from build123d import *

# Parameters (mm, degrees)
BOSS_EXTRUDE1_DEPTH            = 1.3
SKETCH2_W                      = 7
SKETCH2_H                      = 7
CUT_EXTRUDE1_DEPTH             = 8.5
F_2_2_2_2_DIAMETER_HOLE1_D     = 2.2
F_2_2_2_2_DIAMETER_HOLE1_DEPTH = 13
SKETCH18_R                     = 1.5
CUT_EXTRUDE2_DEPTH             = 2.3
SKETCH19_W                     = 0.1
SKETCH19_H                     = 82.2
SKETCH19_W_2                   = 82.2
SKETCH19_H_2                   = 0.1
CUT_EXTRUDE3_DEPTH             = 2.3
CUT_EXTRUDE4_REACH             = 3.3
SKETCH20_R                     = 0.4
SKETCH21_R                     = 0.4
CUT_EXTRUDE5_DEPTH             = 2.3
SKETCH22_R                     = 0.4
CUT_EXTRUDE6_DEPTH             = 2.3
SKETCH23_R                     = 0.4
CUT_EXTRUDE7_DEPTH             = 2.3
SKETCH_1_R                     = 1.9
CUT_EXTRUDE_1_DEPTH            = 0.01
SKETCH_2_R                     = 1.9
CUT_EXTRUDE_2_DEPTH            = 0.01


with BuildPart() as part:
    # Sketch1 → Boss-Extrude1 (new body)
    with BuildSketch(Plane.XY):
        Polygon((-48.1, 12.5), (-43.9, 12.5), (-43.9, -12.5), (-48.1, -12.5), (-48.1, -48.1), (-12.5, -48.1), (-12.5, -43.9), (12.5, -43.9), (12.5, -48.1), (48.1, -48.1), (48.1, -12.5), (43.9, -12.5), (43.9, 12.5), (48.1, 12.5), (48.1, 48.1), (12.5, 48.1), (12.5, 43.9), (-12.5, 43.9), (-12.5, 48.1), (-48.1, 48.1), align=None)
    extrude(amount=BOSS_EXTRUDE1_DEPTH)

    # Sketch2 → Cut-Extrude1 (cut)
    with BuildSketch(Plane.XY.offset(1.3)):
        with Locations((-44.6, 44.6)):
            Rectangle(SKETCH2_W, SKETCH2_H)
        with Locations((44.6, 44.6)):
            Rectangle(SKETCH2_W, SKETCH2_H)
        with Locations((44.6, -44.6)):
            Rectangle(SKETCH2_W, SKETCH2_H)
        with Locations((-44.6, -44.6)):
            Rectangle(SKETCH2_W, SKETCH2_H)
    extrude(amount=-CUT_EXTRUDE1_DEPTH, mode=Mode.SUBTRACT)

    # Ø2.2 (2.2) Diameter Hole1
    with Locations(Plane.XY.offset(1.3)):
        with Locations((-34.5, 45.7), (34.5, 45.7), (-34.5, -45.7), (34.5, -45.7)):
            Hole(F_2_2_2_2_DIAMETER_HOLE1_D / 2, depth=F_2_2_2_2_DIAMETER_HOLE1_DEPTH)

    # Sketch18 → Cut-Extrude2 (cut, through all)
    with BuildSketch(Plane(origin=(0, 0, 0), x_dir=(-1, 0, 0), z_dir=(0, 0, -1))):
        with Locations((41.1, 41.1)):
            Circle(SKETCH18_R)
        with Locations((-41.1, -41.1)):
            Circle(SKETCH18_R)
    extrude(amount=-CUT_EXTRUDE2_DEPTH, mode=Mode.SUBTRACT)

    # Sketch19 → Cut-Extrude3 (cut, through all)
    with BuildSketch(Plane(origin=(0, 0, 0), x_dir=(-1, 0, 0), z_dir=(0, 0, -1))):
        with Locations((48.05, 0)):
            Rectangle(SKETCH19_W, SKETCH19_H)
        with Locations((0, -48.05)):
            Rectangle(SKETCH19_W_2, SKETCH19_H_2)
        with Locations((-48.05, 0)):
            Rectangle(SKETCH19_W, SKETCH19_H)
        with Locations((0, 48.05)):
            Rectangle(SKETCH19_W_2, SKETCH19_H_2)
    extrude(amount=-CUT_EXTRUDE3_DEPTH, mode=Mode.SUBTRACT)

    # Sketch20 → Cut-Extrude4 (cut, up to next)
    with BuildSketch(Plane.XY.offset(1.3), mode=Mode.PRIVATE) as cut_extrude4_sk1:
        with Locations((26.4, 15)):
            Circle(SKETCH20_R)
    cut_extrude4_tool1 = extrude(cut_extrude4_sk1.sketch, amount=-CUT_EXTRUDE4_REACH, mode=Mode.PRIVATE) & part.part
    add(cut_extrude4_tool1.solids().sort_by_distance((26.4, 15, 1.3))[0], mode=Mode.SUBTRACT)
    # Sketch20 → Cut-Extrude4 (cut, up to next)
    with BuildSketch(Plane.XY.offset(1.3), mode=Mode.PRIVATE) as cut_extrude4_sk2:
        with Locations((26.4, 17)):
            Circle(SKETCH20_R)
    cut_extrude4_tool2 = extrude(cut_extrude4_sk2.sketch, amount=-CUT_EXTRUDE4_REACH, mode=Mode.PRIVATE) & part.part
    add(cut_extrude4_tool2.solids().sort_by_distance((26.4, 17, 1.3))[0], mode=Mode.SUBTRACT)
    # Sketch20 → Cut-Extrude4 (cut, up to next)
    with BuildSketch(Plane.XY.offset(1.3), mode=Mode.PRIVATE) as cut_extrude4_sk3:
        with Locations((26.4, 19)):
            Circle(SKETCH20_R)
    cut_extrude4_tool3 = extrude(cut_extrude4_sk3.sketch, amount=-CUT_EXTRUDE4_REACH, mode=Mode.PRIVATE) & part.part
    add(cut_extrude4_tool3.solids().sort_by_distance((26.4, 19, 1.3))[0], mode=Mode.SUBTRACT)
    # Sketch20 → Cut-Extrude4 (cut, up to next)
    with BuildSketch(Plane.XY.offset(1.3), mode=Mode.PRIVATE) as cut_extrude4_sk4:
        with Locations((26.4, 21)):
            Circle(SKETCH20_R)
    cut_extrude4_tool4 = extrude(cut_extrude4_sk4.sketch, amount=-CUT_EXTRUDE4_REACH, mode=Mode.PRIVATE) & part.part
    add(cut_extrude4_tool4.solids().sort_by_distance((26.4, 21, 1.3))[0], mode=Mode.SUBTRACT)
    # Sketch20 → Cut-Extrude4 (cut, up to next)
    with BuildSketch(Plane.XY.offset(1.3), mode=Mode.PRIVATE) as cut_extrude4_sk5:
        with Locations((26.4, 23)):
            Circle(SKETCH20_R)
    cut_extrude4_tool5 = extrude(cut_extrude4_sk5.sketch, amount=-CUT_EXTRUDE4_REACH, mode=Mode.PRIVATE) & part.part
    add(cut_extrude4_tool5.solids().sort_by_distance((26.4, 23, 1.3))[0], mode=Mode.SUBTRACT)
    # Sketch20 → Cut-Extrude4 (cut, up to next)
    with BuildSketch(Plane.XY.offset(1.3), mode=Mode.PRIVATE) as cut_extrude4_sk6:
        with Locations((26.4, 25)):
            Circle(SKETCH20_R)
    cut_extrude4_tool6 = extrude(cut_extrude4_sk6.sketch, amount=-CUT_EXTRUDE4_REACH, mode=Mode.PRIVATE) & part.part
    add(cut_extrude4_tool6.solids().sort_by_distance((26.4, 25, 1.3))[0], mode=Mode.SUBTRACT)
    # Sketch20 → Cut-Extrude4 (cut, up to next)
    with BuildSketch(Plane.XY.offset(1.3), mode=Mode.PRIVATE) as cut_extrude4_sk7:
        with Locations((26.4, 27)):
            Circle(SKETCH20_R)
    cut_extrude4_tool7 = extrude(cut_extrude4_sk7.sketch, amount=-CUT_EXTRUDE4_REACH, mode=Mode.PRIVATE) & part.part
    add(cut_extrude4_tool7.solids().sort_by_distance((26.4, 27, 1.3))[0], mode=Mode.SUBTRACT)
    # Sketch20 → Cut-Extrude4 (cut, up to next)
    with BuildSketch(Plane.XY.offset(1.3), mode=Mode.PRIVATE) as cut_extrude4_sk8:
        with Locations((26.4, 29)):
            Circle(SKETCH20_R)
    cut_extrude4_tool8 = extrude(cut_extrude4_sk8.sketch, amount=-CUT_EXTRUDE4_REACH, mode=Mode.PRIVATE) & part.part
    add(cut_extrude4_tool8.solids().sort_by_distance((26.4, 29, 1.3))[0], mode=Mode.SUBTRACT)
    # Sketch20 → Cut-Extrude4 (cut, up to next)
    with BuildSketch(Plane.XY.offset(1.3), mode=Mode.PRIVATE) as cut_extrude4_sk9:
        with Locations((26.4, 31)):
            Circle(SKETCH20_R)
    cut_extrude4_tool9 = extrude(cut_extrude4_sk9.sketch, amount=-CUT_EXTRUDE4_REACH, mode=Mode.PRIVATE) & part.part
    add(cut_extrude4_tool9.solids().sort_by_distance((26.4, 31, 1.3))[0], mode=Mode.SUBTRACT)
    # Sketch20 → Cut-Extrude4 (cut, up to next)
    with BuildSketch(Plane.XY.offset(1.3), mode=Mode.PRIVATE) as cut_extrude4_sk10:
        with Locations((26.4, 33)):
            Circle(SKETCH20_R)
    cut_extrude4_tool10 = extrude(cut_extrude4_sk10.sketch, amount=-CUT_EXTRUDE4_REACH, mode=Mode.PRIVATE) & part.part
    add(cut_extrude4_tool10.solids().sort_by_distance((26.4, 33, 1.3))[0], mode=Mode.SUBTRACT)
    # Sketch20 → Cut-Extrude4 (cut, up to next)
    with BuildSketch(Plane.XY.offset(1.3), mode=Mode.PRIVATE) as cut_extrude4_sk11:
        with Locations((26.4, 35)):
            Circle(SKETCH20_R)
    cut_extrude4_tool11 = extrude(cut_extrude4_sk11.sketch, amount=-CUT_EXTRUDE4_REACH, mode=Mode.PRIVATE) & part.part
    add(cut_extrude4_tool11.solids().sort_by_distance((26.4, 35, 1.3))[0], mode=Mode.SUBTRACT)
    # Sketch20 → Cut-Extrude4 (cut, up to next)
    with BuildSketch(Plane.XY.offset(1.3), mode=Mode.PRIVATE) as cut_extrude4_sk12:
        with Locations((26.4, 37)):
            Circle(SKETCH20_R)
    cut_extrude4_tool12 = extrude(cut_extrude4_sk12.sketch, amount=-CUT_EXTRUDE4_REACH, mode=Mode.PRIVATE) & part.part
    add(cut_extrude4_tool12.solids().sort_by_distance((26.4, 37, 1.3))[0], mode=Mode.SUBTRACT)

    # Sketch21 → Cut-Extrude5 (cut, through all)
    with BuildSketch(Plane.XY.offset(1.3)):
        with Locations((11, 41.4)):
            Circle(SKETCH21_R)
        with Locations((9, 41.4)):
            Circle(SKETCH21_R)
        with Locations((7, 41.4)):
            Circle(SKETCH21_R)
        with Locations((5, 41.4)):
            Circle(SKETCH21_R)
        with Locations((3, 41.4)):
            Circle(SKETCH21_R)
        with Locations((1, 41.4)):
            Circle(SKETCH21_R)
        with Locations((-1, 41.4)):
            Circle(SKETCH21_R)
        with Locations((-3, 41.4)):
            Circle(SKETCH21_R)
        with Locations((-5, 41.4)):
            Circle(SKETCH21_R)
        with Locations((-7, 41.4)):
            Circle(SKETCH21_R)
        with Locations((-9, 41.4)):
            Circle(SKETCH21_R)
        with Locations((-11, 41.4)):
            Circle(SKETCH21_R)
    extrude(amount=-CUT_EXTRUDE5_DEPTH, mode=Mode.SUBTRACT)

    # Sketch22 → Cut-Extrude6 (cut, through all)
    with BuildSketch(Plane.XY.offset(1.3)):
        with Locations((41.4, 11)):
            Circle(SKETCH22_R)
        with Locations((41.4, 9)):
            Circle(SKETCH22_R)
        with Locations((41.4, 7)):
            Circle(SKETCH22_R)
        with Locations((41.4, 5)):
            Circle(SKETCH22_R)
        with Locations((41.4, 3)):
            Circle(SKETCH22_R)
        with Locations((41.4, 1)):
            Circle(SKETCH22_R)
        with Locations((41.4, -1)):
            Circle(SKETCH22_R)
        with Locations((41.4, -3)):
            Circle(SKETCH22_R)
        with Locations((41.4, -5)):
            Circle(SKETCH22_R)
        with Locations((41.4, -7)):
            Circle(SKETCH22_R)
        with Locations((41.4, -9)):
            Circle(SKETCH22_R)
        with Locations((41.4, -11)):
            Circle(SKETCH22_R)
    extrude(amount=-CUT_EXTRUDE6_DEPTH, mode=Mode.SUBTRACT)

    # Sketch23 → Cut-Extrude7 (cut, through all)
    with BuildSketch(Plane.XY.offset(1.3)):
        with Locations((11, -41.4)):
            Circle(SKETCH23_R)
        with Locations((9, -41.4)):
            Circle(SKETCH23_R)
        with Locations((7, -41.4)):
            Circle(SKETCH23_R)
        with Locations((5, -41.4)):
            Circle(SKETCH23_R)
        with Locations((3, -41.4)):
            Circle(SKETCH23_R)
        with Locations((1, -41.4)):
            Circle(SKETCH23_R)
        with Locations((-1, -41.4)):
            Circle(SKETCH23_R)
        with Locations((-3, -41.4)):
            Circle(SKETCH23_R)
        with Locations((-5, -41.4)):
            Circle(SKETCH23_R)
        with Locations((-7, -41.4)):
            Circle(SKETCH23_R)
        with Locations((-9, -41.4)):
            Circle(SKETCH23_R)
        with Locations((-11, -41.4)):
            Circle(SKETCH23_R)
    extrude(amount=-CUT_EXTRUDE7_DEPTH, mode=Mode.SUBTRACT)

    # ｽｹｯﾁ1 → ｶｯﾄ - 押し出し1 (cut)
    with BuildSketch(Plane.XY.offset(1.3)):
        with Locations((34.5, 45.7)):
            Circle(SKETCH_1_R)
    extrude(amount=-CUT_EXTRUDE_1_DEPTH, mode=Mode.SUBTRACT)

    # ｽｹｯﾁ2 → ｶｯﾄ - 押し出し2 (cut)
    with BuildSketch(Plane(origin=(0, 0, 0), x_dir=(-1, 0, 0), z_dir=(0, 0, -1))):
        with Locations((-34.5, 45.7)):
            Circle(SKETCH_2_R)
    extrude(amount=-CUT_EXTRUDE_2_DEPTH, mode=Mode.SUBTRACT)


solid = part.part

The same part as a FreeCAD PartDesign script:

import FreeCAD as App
import Part
import Sketcher
Q = App.Units.Quantity

doc = App.newDocument("Part")
body = doc.addObject("PartDesign::Body", "Body")

sketch1 = body.newObject("Sketcher::SketchObject", "Sketch")
sketch1.AttachmentSupport = (doc.getObject("XY_Plane"), [""])
sketch1.MapMode = "FlatFace"
sketch1.addGeometry([
    Part.LineSegment(App.Vector(-48.1, 12.5, 0), App.Vector(-43.9, 12.5, 0)),
    Part.LineSegment(App.Vector(-43.9, 12.5, 0), App.Vector(-43.9, -12.5, 0)),
    Part.LineSegment(App.Vector(-43.9, -12.5, 0), App.Vector(-48.1, -12.5, 0)),
    Part.LineSegment(App.Vector(-48.1, -12.5, 0), App.Vector(-48.1, -48.1, 0)),
    Part.LineSegment(App.Vector(-48.1, -48.1, 0), App.Vector(-12.5, -48.1, 0)),
    Part.LineSegment(App.Vector(-12.5, -48.1, 0), App.Vector(-12.5, -43.9, 0)),
    Part.LineSegment(App.Vector(-12.5, -43.9, 0), App.Vector(12.5, -43.9, 0)),
    Part.LineSegment(App.Vector(12.5, -43.9, 0), App.Vector(12.5, -48.1, 0)),
    Part.LineSegment(App.Vector(12.5, -48.1, 0), App.Vector(48.1, -48.1, 0)),
    Part.LineSegment(App.Vector(48.1, -48.1, 0), App.Vector(48.1, -12.5, 0)),
    Part.LineSegment(App.Vector(48.1, -12.5, 0), App.Vector(43.9, -12.5, 0)),
    Part.LineSegment(App.Vector(43.9, -12.5, 0), App.Vector(43.9, 12.5, 0)),
    Part.LineSegment(App.Vector(43.9, 12.5, 0), App.Vector(48.1, 12.5, 0)),
    Part.LineSegment(App.Vector(48.1, 12.5, 0), App.Vector(48.1, 48.1, 0)),
    Part.LineSegment(App.Vector(48.1, 48.1, 0), App.Vector(12.5, 48.1, 0)),
    Part.LineSegment(App.Vector(12.5, 48.1, 0), App.Vector(12.5, 43.9, 0)),
    Part.LineSegment(App.Vector(12.5, 43.9, 0), App.Vector(-12.5, 43.9, 0)),
    Part.LineSegment(App.Vector(-12.5, 43.9, 0), App.Vector(-12.5, 48.1, 0)),
    Part.LineSegment(App.Vector(-12.5, 48.1, 0), App.Vector(-48.1, 48.1, 0)),
    Part.LineSegment(App.Vector(-48.1, 48.1, 0), App.Vector(-48.1, 12.5, 0)),
], False)
sketch1.addConstraint([
    Sketcher.Constraint("Coincident", 0, 2, 1, 1),
    Sketcher.Constraint("Coincident", 1, 2, 2, 1),
    Sketcher.Constraint("Coincident", 2, 2, 3, 1),
    Sketcher.Constraint("Coincident", 3, 2, 4, 1),
    Sketcher.Constraint("Coincident", 4, 2, 5, 1),
    Sketcher.Constraint("Coincident", 5, 2, 6, 1),
    Sketcher.Constraint("Coincident", 6, 2, 7, 1),
    Sketcher.Constraint("Coincident", 7, 2, 8, 1),
    Sketcher.Constraint("Coincident", 8, 2, 9, 1),
    Sketcher.Constraint("Coincident", 9, 2, 10, 1),
    Sketcher.Constraint("Coincident", 10, 2, 11, 1),
    Sketcher.Constraint("Coincident", 11, 2, 12, 1),
    Sketcher.Constraint("Coincident", 12, 2, 13, 1),
    Sketcher.Constraint("Coincident", 13, 2, 14, 1),
    Sketcher.Constraint("Coincident", 14, 2, 15, 1),
    Sketcher.Constraint("Coincident", 15, 2, 16, 1),
    Sketcher.Constraint("Coincident", 16, 2, 17, 1),
    Sketcher.Constraint("Coincident", 17, 2, 18, 1),
    Sketcher.Constraint("Coincident", 18, 2, 19, 1),
    Sketcher.Constraint("Coincident", 19, 2, 0, 1),
    Sketcher.Constraint("Horizontal", 0),
    Sketcher.Constraint("Vertical", 1),
    Sketcher.Constraint("Horizontal", 2),
    Sketcher.Constraint("Vertical", 3),
    Sketcher.Constraint("Horizontal", 4),
    Sketcher.Constraint("Vertical", 5),
    Sketcher.Constraint("Horizontal", 6),
    Sketcher.Constraint("Vertical", 7),
    Sketcher.Constraint("Horizontal", 8),
    Sketcher.Constraint("Vertical", 9),
    Sketcher.Constraint("Horizontal", 10),
    Sketcher.Constraint("Vertical", 11),
    Sketcher.Constraint("Horizontal", 12),
    Sketcher.Constraint("Vertical", 13),
    Sketcher.Constraint("Horizontal", 14),
    Sketcher.Constraint("Vertical", 15),
    Sketcher.Constraint("Horizontal", 16),
    Sketcher.Constraint("Vertical", 17),
    Sketcher.Constraint("Horizontal", 18),
    Sketcher.Constraint("Vertical", 19),
    Sketcher.Constraint("Symmetric", 0, 2, 10, 2, -1, 1),
    Sketcher.Constraint("Symmetric", 2, 2, 12, 2, -1, 1),
    Sketcher.Constraint("Symmetric", 4, 2, 14, 2, -1, 1),
    Sketcher.Constraint("Symmetric", 6, 2, 16, 2, -1, 1),
    Sketcher.Constraint("Symmetric", 8, 2, 18, 2, -1, 1),
    Sketcher.Constraint("Symmetric", 4, 2, 7, 2, -2),
    Sketcher.Constraint("Symmetric", 2, 2, 9, 2, -2),
    Sketcher.Constraint("Equal", 16, 1),
    Sketcher.Constraint("Equal", 18, 3),
    Sketcher.Constraint("Equal", 12, 5),
    Sketcher.Constraint("DistanceX", 6, 1, 6, 2, Q("25 mm")),
    Sketcher.Constraint("DistanceX", 0, 1, 0, 2, Q("4.2 mm")),
    Sketcher.Constraint("DistanceX", 4, 1, 4, 2, Q("35.6 mm")),
])
pad1 = body.newObject("PartDesign::Pad", "Pad")
pad1.Profile = sketch1
pad1.Length = 1.3

sketch2 = body.newObject("Sketcher::SketchObject", "Sketch001")
sketch2.AttachmentSupport = (doc.getObject("XY_Plane"), [""])
sketch2.MapMode = "FlatFace"
sketch2.AttachmentOffset = App.Placement(App.Vector(0, 0, 1.3), App.Rotation())
sketch2.addGeometry([
    Part.LineSegment(App.Vector(-48, 48, 0), App.Vector(-48, 41, 0)),
    Part.LineSegment(App.Vector(-48, 41, 0), App.Vector(-41, 41, 0)),
    Part.LineSegment(App.Vector(-41, 41, 0), App.Vector(-41, 48, 0)),
    Part.LineSegment(App.Vector(-41, 48, 0), App.Vector(-48, 48, 0)),
    Part.LineSegment(App.Vector(41, 48, 0), App.Vector(41, 41, 0)),
    Part.LineSegment(App.Vector(41, 41, 0), App.Vector(48, 41, 0)),
    Part.LineSegment(App.Vector(48, 41, 0), App.Vector(48, 48, 0)),
    Part.LineSegment(App.Vector(48, 48, 0), App.Vector(41, 48, 0)),
    Part.LineSegment(App.Vector(41, -41, 0), App.Vector(41, -48, 0)),
    Part.LineSegment(App.Vector(41, -48, 0), App.Vector(48, -48, 0)),
    Part.LineSegment(App.Vector(48, -48, 0), App.Vector(48, -41, 0)),
    Part.LineSegment(App.Vector(48, -41, 0), App.Vector(41, -41, 0)),
    Part.LineSegment(App.Vector(-48, -41, 0), App.Vector(-48, -48, 0)),
    Part.LineSegment(App.Vector(-48, -48, 0), App.Vector(-41, -48, 0)),
    Part.LineSegment(App.Vector(-41, -48, 0), App.Vector(-41, -41, 0)),
    Part.LineSegment(App.Vector(-41, -41, 0), App.Vector(-48, -41, 0)),
], False)
sketch2.addConstraint([
    Sketcher.Constraint("Coincident", 0, 2, 1, 1),
    Sketcher.Constraint("Coincident", 1, 2, 2, 1),
    Sketcher.Constraint("Coincident", 2, 2, 3, 1),
    Sketcher.Constraint("Coincident", 3, 2, 0, 1),
    Sketcher.Constraint("Coincident", 4, 2, 5, 1),
    Sketcher.Constraint("Coincident", 5, 2, 6, 1),
    Sketcher.Constraint("Coincident", 6, 2, 7, 1),
    Sketcher.Constraint("Coincident", 7, 2, 4, 1),
    Sketcher.Constraint("Coincident", 8, 2, 9, 1),
    Sketcher.Constraint("Coincident", 9, 2, 10, 1),
    Sketcher.Constraint("Coincident", 10, 2, 11, 1),
    Sketcher.Constraint("Coincident", 11, 2, 8, 1),
    Sketcher.Constraint("Coincident", 12, 2, 13, 1),
    Sketcher.Constraint("Coincident", 13, 2, 14, 1),
    Sketcher.Constraint("Coincident", 14, 2, 15, 1),
    Sketcher.Constraint("Coincident", 15, 2, 12, 1),
    Sketcher.Constraint("Vertical", 0),
    Sketcher.Constraint("Horizontal", 1),
    Sketcher.Constraint("Vertical", 2),
    Sketcher.Constraint("Horizontal", 3),
    Sketcher.Constraint("Vertical", 4),
    Sketcher.Constraint("Horizontal", 5),
    Sketcher.Constraint("Vertical", 6),
    Sketcher.Constraint("Horizontal", 7),
    Sketcher.Constraint("Vertical", 8),
    Sketcher.Constraint("Horizontal", 9),
    Sketcher.Constraint("Vertical", 10),
    Sketcher.Constraint("Horizontal", 11),
    Sketcher.Constraint("Vertical", 12),
    Sketcher.Constraint("Horizontal", 13),
    Sketcher.Constraint("Vertical", 14),
    Sketcher.Constraint("Horizontal", 15),
    Sketcher.Constraint("Symmetric", 2, 2, 8, 2, -1, 1),
    Sketcher.Constraint("Symmetric", 0, 2, 10, 2, -1, 1),
    Sketcher.Constraint("Symmetric", 6, 2, 12, 2, -1, 1),
    Sketcher.Constraint("Symmetric", 4, 2, 14, 2, -1, 1),
    Sketcher.Constraint("Symmetric", 1, 2, 4, 2, -2),
    Sketcher.Constraint("Symmetric", 3, 2, 6, 2, -2),
    Sketcher.Constraint("Equal", 15, 0),
    Sketcher.Constraint("DistanceX", 1, 1, 1, 2, Q("7 mm")),
    Sketcher.Constraint("DistanceX", 0, 2, -1, 1, Q("48.1 mm")),
    Sketcher.Constraint("DistanceY", -1, 1, 0, 2, Q("41.1 mm")),
])
pocket1 = body.newObject("PartDesign::Pocket", "Pocket")
pocket1.Profile = sketch2
pocket1.Length = 8.5

sketch3 = body.newObject("Sketcher::SketchObject", "Sketch002")
sketch3.AttachmentSupport = (doc.getObject("XY_Plane"), [""])
sketch3.MapMode = "FlatFace"
sketch3.AttachmentOffset = App.Placement(App.Vector(0, 0, 1.3), App.Rotation())
sketch3.addGeometry([
    Part.Circle(App.Vector(-34.5, 45.7, 0), App.Vector(0, 0, 1), 1.1),
    Part.Circle(App.Vector(34.5, 45.7, 0), App.Vector(0, 0, 1), 1.1),
    Part.Circle(App.Vector(-34.5, -45.7, 0), App.Vector(0, 0, 1), 1.1),
    Part.Circle(App.Vector(34.5, -45.7, 0), App.Vector(0, 0, 1), 1.1),
], False)
sketch3.addConstraint([
    Sketcher.Constraint("Equal", 0, 1),
    Sketcher.Constraint("Equal", 1, 2),
    Sketcher.Constraint("Equal", 2, 3),
    Sketcher.Constraint("Symmetric", 1, 3, 2, 3, -1, 1),
    Sketcher.Constraint("Symmetric", 0, 3, 3, 3, -1, 1),
    Sketcher.Constraint("Symmetric", 0, 3, 1, 3, -2),
    Sketcher.Constraint("Diameter", 0, Q("2.2 mm")),
    Sketcher.Constraint("DistanceX", 0, 3, 1, 3, Q("69 mm")),
    Sketcher.Constraint("DistanceY", -1, 1, 0, 3, Q("45.7 mm")),
])
doc.recompute()
hole = body.newObject("PartDesign::Hole", "Hole")
hole.Profile = sketch3
hole.ThreadType = "None"
hole.Diameter = 2.2
hole.DepthType = "Dimension"
hole.Depth = 13
hole.DrillPoint = "Flat"

sketch4 = body.newObject("Sketcher::SketchObject", "Sketch003")
sketch4.AttachmentSupport = (doc.getObject("XY_Plane"), [""])
sketch4.MapMode = "FlatFace"
sketch4.addGeometry([
    Part.Circle(App.Vector(-41.1, 41.1, 0), App.Vector(0, 0, 1), 1.5),
    Part.Circle(App.Vector(41.1, -41.1, 0), App.Vector(0, 0, 1), 1.5),
], False)
sketch4.addConstraint([
    Sketcher.Constraint("Equal", 0, 1),
    Sketcher.Constraint("Symmetric", 0, 3, 1, 3, -1, 1),
    Sketcher.Constraint("Diameter", 0, Q("3 mm")),
    Sketcher.Constraint("DistanceX", 0, 3, -1, 1, Q("41.1 mm")),
    Sketcher.Constraint("DistanceY", -1, 1, 0, 3, Q("41.1 mm")),
])
pocket2 = body.newObject("PartDesign::Pocket", "Pocket001")
pocket2.Profile = sketch4
pocket2.Type = "ThroughAll"
pocket2.Reversed = True

sketch5 = body.newObject("Sketcher::SketchObject", "Sketch004")
sketch5.AttachmentSupport = (doc.getObject("XY_Plane"), [""])
sketch5.MapMode = "FlatFace"
sketch5.addGeometry([
    Part.LineSegment(App.Vector(-48, 41.1, 0), App.Vector(-48, -41.1, 0)),
    Part.LineSegment(App.Vector(-48, -41.1, 0), App.Vector(-48.1, -41.1, 0)),
    Part.LineSegment(App.Vector(-48.1, -41.1, 0), App.Vector(-48.1, 41.1, 0)),
    Part.LineSegment(App.Vector(-48.1, 41.1, 0), App.Vector(-48, 41.1, 0)),
    Part.LineSegment(App.Vector(41.1, -48, 0), App.Vector(41.1, -48.1, 0)),
    Part.LineSegment(App.Vector(41.1, -48.1, 0), App.Vector(-41.1, -48.1, 0)),
    Part.LineSegment(App.Vector(-41.1, -48.1, 0), App.Vector(-41.1, -48, 0)),
    Part.LineSegment(App.Vector(-41.1, -48, 0), App.Vector(41.1, -48, 0)),
    Part.LineSegment(App.Vector(48.1, 41.1, 0), App.Vector(48.1, -41.1, 0)),
    Part.LineSegment(App.Vector(48.1, -41.1, 0), App.Vector(48, -41.1, 0)),
    Part.LineSegment(App.Vector(48, -41.1, 0), App.Vector(48, 41.1, 0)),
    Part.LineSegment(App.Vector(48, 41.1, 0), App.Vector(48.1, 41.1, 0)),
    Part.LineSegment(App.Vector(41.1, 48.1, 0), App.Vector(41.1, 48, 0)),
    Part.LineSegment(App.Vector(41.1, 48, 0), App.Vector(-41.1, 48, 0)),
    Part.LineSegment(App.Vector(-41.1, 48, 0), App.Vector(-41.1, 48.1, 0)),
    Part.LineSegment(App.Vector(-41.1, 48.1, 0), App.Vector(41.1, 48.1, 0)),
], False)
sketch5.addConstraint([
    Sketcher.Constraint("Coincident", 0, 2, 1, 1),
    Sketcher.Constraint("Coincident", 1, 2, 2, 1),
    Sketcher.Constraint("Coincident", 2, 2, 3, 1),
    Sketcher.Constraint("Coincident", 3, 2, 0, 1),
    Sketcher.Constraint("Coincident", 4, 2, 5, 1),
    Sketcher.Constraint("Coincident", 5, 2, 6, 1),
    Sketcher.Constraint("Coincident", 6, 2, 7, 1),
    Sketcher.Constraint("Coincident", 7, 2, 4, 1),
    Sketcher.Constraint("Coincident", 8, 2, 9, 1),
    Sketcher.Constraint("Coincident", 9, 2, 10, 1),
    Sketcher.Constraint("Coincident", 10, 2, 11, 1),
    Sketcher.Constraint("Coincident", 11, 2, 8, 1),
    Sketcher.Constraint("Coincident", 12, 2, 13, 1),
    Sketcher.Constraint("Coincident", 13, 2, 14, 1),
    Sketcher.Constraint("Coincident", 14, 2, 15, 1),
    Sketcher.Constraint("Coincident", 15, 2, 12, 1),
    Sketcher.Constraint("Vertical", 0),
    Sketcher.Constraint("Horizontal", 1),
    Sketcher.Constraint("Vertical", 2),
    Sketcher.Constraint("Horizontal", 3),
    Sketcher.Constraint("Vertical", 4),
    Sketcher.Constraint("Horizontal", 5),
    Sketcher.Constraint("Vertical", 6),
    Sketcher.Constraint("Horizontal", 7),
    Sketcher.Constraint("Vertical", 8),
    Sketcher.Constraint("Horizontal", 9),
    Sketcher.Constraint("Vertical", 10),
    Sketcher.Constraint("Horizontal", 11),
    Sketcher.Constraint("Vertical", 12),
    Sketcher.Constraint("Horizontal", 13),
    Sketcher.Constraint("Vertical", 14),
    Sketcher.Constraint("Horizontal", 15),
    Sketcher.Constraint("Symmetric", 2, 2, 8, 2, -1, 1),
    Sketcher.Constraint("Symmetric", 0, 2, 10, 2, -1, 1),
    Sketcher.Constraint("Symmetric", 6, 2, 12, 2, -1, 1),
    Sketcher.Constraint("Symmetric", 4, 2, 14, 2, -1, 1),
    Sketcher.Constraint("Horizontal", 1, 2, 8, 2),
    Sketcher.Constraint("Vertical", 7, 2, 12, 2),
    Sketcher.Constraint("Equal", 15, 0),
    Sketcher.Constraint("Equal", 11, 4),
    Sketcher.Constraint("DistanceX", 1, 2, 1, 1, Q("0.1 mm")),
    Sketcher.Constraint("DistanceX", 5, 2, 5, 1, Q("82.2 mm")),
    Sketcher.Constraint("DistanceX", 0, 2, -1, 1, Q("48 mm")),
    Sketcher.Constraint("DistanceY", 6, 2, -1, 1, Q("48 mm")),
])
pocket3 = body.newObject("PartDesign::Pocket", "Pocket002")
pocket3.Profile = sketch5
pocket3.Type = "ThroughAll"
pocket3.Reversed = True

sketch6 = body.newObject("Sketcher::SketchObject", "Sketch005")
sketch6.AttachmentSupport = (doc.getObject("XY_Plane"), [""])
sketch6.MapMode = "FlatFace"
sketch6.AttachmentOffset = App.Placement(App.Vector(0, 0, 1.3), App.Rotation())
sketch6.addGeometry(Part.Circle(App.Vector(26.4, 15, 0), App.Vector(0, 0, 1), 0.4), False)
sketch6.addConstraint([
    Sketcher.Constraint("Diameter", 0, Q("0.8 mm")),
    Sketcher.Constraint("DistanceY", -1, 1, 0, 3, Q("15 mm")),
    Sketcher.Constraint("DistanceX", -1, 1, 0, 3, Q("26.4 mm")),
])
pocket4 = body.newObject("PartDesign::Pocket", "Pocket003")
pocket4.Profile = sketch6
pocket4.Type = "UpToFirst"

sketch7 = body.newObject("Sketcher::SketchObject", "Sketch006")
sketch7.AttachmentSupport = (doc.getObject("XY_Plane"), [""])
sketch7.MapMode = "FlatFace"
sketch7.AttachmentOffset = App.Placement(App.Vector(0, 0, 1.3), App.Rotation())
sketch7.addGeometry(Part.Circle(App.Vector(26.4, 17, 0), App.Vector(0, 0, 1), 0.4), False)
sketch7.addConstraint([
    Sketcher.Constraint("Diameter", 0, Q("0.8 mm")),
    Sketcher.Constraint("DistanceY", -1, 1, 0, 3, Q("17 mm")),
    Sketcher.Constraint("DistanceX", -1, 1, 0, 3, Q("26.4 mm")),
])
pocket5 = body.newObject("PartDesign::Pocket", "Pocket004")
pocket5.Profile = sketch7
pocket5.Type = "UpToFirst"

sketch8 = body.newObject("Sketcher::SketchObject", "Sketch007")
sketch8.AttachmentSupport = (doc.getObject("XY_Plane"), [""])
sketch8.MapMode = "FlatFace"
sketch8.AttachmentOffset = App.Placement(App.Vector(0, 0, 1.3), App.Rotation())
sketch8.addGeometry(Part.Circle(App.Vector(26.4, 19, 0), App.Vector(0, 0, 1), 0.4), False)
sketch8.addConstraint([
    Sketcher.Constraint("Diameter", 0, Q("0.8 mm")),
    Sketcher.Constraint("DistanceY", -1, 1, 0, 3, Q("19 mm")),
    Sketcher.Constraint("DistanceX", -1, 1, 0, 3, Q("26.4 mm")),
])
pocket6 = body.newObject("PartDesign::Pocket", "Pocket005")
pocket6.Profile = sketch8
pocket6.Type = "UpToFirst"

sketch9 = body.newObject("Sketcher::SketchObject", "Sketch008")
sketch9.AttachmentSupport = (doc.getObject("XY_Plane"), [""])
sketch9.MapMode = "FlatFace"
sketch9.AttachmentOffset = App.Placement(App.Vector(0, 0, 1.3), App.Rotation())
sketch9.addGeometry(Part.Circle(App.Vector(26.4, 21, 0), App.Vector(0, 0, 1), 0.4), False)
sketch9.addConstraint([
    Sketcher.Constraint("Diameter", 0, Q("0.8 mm")),
    Sketcher.Constraint("DistanceY", -1, 1, 0, 3, Q("21 mm")),
    Sketcher.Constraint("DistanceX", -1, 1, 0, 3, Q("26.4 mm")),
])
pocket7 = body.newObject("PartDesign::Pocket", "Pocket006")
pocket7.Profile = sketch9
pocket7.Type = "UpToFirst"

sketch10 = body.newObject("Sketcher::SketchObject", "Sketch009")
sketch10.AttachmentSupport = (doc.getObject("XY_Plane"), [""])
sketch10.MapMode = "FlatFace"
sketch10.AttachmentOffset = App.Placement(App.Vector(0, 0, 1.3), App.Rotation())
sketch10.addGeometry(Part.Circle(App.Vector(26.4, 23, 0), App.Vector(0, 0, 1), 0.4), False)
sketch10.addConstraint([
    Sketcher.Constraint("Diameter", 0, Q("0.8 mm")),
    Sketcher.Constraint("DistanceY", -1, 1, 0, 3, Q("23 mm")),
    Sketcher.Constraint("DistanceX", -1, 1, 0, 3, Q("26.4 mm")),
])
pocket8 = body.newObject("PartDesign::Pocket", "Pocket007")
pocket8.Profile = sketch10
pocket8.Type = "UpToFirst"

sketch11 = body.newObject("Sketcher::SketchObject", "Sketch010")
sketch11.AttachmentSupport = (doc.getObject("XY_Plane"), [""])
sketch11.MapMode = "FlatFace"
sketch11.AttachmentOffset = App.Placement(App.Vector(0, 0, 1.3), App.Rotation())
sketch11.addGeometry(Part.Circle(App.Vector(26.4, 25, 0), App.Vector(0, 0, 1), 0.4), False)
sketch11.addConstraint([
    Sketcher.Constraint("Diameter", 0, Q("0.8 mm")),
    Sketcher.Constraint("DistanceY", -1, 1, 0, 3, Q("25 mm")),
    Sketcher.Constraint("DistanceX", -1, 1, 0, 3, Q("26.4 mm")),
])
pocket9 = body.newObject("PartDesign::Pocket", "Pocket008")
pocket9.Profile = sketch11
pocket9.Type = "UpToFirst"

sketch12 = body.newObject("Sketcher::SketchObject", "Sketch011")
sketch12.AttachmentSupport = (doc.getObject("XY_Plane"), [""])
sketch12.MapMode = "FlatFace"
sketch12.AttachmentOffset = App.Placement(App.Vector(0, 0, 1.3), App.Rotation())
sketch12.addGeometry(Part.Circle(App.Vector(26.4, 27, 0), App.Vector(0, 0, 1), 0.4), False)
sketch12.addConstraint([
    Sketcher.Constraint("Diameter", 0, Q("0.8 mm")),
    Sketcher.Constraint("DistanceY", -1, 1, 0, 3, Q("27 mm")),
    Sketcher.Constraint("DistanceX", -1, 1, 0, 3, Q("26.4 mm")),
])
pocket10 = body.newObject("PartDesign::Pocket", "Pocket009")
pocket10.Profile = sketch12
pocket10.Type = "UpToFirst"

sketch13 = body.newObject("Sketcher::SketchObject", "Sketch012")
sketch13.AttachmentSupport = (doc.getObject("XY_Plane"), [""])
sketch13.MapMode = "FlatFace"
sketch13.AttachmentOffset = App.Placement(App.Vector(0, 0, 1.3), App.Rotation())
sketch13.addGeometry(Part.Circle(App.Vector(26.4, 29, 0), App.Vector(0, 0, 1), 0.4), False)
sketch13.addConstraint([
    Sketcher.Constraint("Diameter", 0, Q("0.8 mm")),
    Sketcher.Constraint("DistanceY", -1, 1, 0, 3, Q("29 mm")),
    Sketcher.Constraint("DistanceX", -1, 1, 0, 3, Q("26.4 mm")),
])
pocket11 = body.newObject("PartDesign::Pocket", "Pocket010")
pocket11.Profile = sketch13
pocket11.Type = "UpToFirst"

sketch14 = body.newObject("Sketcher::SketchObject", "Sketch013")
sketch14.AttachmentSupport = (doc.getObject("XY_Plane"), [""])
sketch14.MapMode = "FlatFace"
sketch14.AttachmentOffset = App.Placement(App.Vector(0, 0, 1.3), App.Rotation())
sketch14.addGeometry(Part.Circle(App.Vector(26.4, 31, 0), App.Vector(0, 0, 1), 0.4), False)
sketch14.addConstraint([
    Sketcher.Constraint("Diameter", 0, Q("0.8 mm")),
    Sketcher.Constraint("DistanceY", -1, 1, 0, 3, Q("31 mm")),
    Sketcher.Constraint("DistanceX", -1, 1, 0, 3, Q("26.4 mm")),
])
pocket12 = body.newObject("PartDesign::Pocket", "Pocket011")
pocket12.Profile = sketch14
pocket12.Type = "UpToFirst"

sketch15 = body.newObject("Sketcher::SketchObject", "Sketch014")
sketch15.AttachmentSupport = (doc.getObject("XY_Plane"), [""])
sketch15.MapMode = "FlatFace"
sketch15.AttachmentOffset = App.Placement(App.Vector(0, 0, 1.3), App.Rotation())
sketch15.addGeometry(Part.Circle(App.Vector(26.4, 33, 0), App.Vector(0, 0, 1), 0.4), False)
sketch15.addConstraint([
    Sketcher.Constraint("Diameter", 0, Q("0.8 mm")),
    Sketcher.Constraint("DistanceY", -1, 1, 0, 3, Q("33 mm")),
    Sketcher.Constraint("DistanceX", -1, 1, 0, 3, Q("26.4 mm")),
])
pocket13 = body.newObject("PartDesign::Pocket", "Pocket012")
pocket13.Profile = sketch15
pocket13.Type = "UpToFirst"

sketch16 = body.newObject("Sketcher::SketchObject", "Sketch015")
sketch16.AttachmentSupport = (doc.getObject("XY_Plane"), [""])
sketch16.MapMode = "FlatFace"
sketch16.AttachmentOffset = App.Placement(App.Vector(0, 0, 1.3), App.Rotation())
sketch16.addGeometry(Part.Circle(App.Vector(26.4, 35, 0), App.Vector(0, 0, 1), 0.4), False)
sketch16.addConstraint([
    Sketcher.Constraint("Diameter", 0, Q("0.8 mm")),
    Sketcher.Constraint("DistanceY", -1, 1, 0, 3, Q("35 mm")),
    Sketcher.Constraint("DistanceX", -1, 1, 0, 3, Q("26.4 mm")),
])
pocket14 = body.newObject("PartDesign::Pocket", "Pocket013")
pocket14.Profile = sketch16
pocket14.Type = "UpToFirst"

sketch17 = body.newObject("Sketcher::SketchObject", "Sketch016")
sketch17.AttachmentSupport = (doc.getObject("XY_Plane"), [""])
sketch17.MapMode = "FlatFace"
sketch17.AttachmentOffset = App.Placement(App.Vector(0, 0, 1.3), App.Rotation())
sketch17.addGeometry(Part.Circle(App.Vector(26.4, 37, 0), App.Vector(0, 0, 1), 0.4), False)
sketch17.addConstraint([
    Sketcher.Constraint("Diameter", 0, Q("0.8 mm")),
    Sketcher.Constraint("DistanceY", -1, 1, 0, 3, Q("37 mm")),
    Sketcher.Constraint("DistanceX", -1, 1, 0, 3, Q("26.4 mm")),
])
pocket15 = body.newObject("PartDesign::Pocket", "Pocket014")
pocket15.Profile = sketch17
pocket15.Type = "UpToFirst"

sketch18 = body.newObject("Sketcher::SketchObject", "Sketch017")
sketch18.AttachmentSupport = (doc.getObject("XY_Plane"), [""])
sketch18.MapMode = "FlatFace"
sketch18.AttachmentOffset = App.Placement(App.Vector(0, 0, 1.3), App.Rotation())
sketch18.addGeometry([
    Part.Circle(App.Vector(11, 41.4, 0), App.Vector(0, 0, 1), 0.4),
    Part.Circle(App.Vector(9, 41.4, 0), App.Vector(0, 0, 1), 0.4),
    Part.Circle(App.Vector(7, 41.4, 0), App.Vector(0, 0, 1), 0.4),
    Part.Circle(App.Vector(5, 41.4, 0), App.Vector(0, 0, 1), 0.4),
    Part.Circle(App.Vector(3, 41.4, 0), App.Vector(0, 0, 1), 0.4),
    Part.Circle(App.Vector(1, 41.4, 0), App.Vector(0, 0, 1), 0.4),
    Part.Circle(App.Vector(-1, 41.4, 0), App.Vector(0, 0, 1), 0.4),
    Part.Circle(App.Vector(-3, 41.4, 0), App.Vector(0, 0, 1), 0.4),
    Part.Circle(App.Vector(-5, 41.4, 0), App.Vector(0, 0, 1), 0.4),
    Part.Circle(App.Vector(-7, 41.4, 0), App.Vector(0, 0, 1), 0.4),
    Part.Circle(App.Vector(-9, 41.4, 0), App.Vector(0, 0, 1), 0.4),
    Part.Circle(App.Vector(-11, 41.4, 0), App.Vector(0, 0, 1), 0.4),
], False)
sketch18.addConstraint([
    Sketcher.Constraint("Equal", 0, 1),
    Sketcher.Constraint("Equal", 1, 2),
    Sketcher.Constraint("Equal", 2, 3),
    Sketcher.Constraint("Equal", 3, 4),
    Sketcher.Constraint("Equal", 4, 5),
    Sketcher.Constraint("Equal", 5, 6),
    Sketcher.Constraint("Equal", 6, 7),
    Sketcher.Constraint("Equal", 7, 8),
    Sketcher.Constraint("Equal", 8, 9),
    Sketcher.Constraint("Equal", 9, 10),
    Sketcher.Constraint("Equal", 10, 11),
    Sketcher.Constraint("Symmetric", 5, 3, 6, 3, -2),
    Sketcher.Constraint("Symmetric", 4, 3, 7, 3, -2),
    Sketcher.Constraint("Symmetric", 3, 3, 8, 3, -2),
    Sketcher.Constraint("Symmetric", 2, 3, 9, 3, -2),
    Sketcher.Constraint("Symmetric", 1, 3, 10, 3, -2),
    Sketcher.Constraint("Symmetric", 0, 3, 11, 3, -2),
    Sketcher.Constraint("Horizontal", 0, 3, 1, 3),
    Sketcher.Constraint("Horizontal", 1, 3, 2, 3),
    Sketcher.Constraint("Horizontal", 2, 3, 3, 3),
    Sketcher.Constraint("Horizontal", 3, 3, 4, 3),
    Sketcher.Constraint("Horizontal", 4, 3, 5, 3),
    Sketcher.Constraint("Diameter", 0, Q("0.8 mm")),
    Sketcher.Constraint("DistanceX", -1, 1, 0, 3, Q("11 mm")),
    Sketcher.Constraint("DistanceX", -1, 1, 1, 3, Q("9 mm")),
    Sketcher.Constraint("DistanceX", -1, 1, 2, 3, Q("7 mm")),
    Sketcher.Constraint("DistanceX", -1, 1, 3, 3, Q("5 mm")),
    Sketcher.Constraint("DistanceX", -1, 1, 4, 3, Q("3 mm")),
    Sketcher.Constraint("DistanceX", -1, 1, 5, 3, Q("1 mm")),
    Sketcher.Constraint("DistanceY", -1, 1, 0, 3, Q("41.4 mm")),
])
pocket16 = body.newObject("PartDesign::Pocket", "Pocket015")
pocket16.Profile = sketch18
pocket16.Type = "ThroughAll"

sketch19 = body.newObject("Sketcher::SketchObject", "Sketch018")
sketch19.AttachmentSupport = (doc.getObject("XY_Plane"), [""])
sketch19.MapMode = "FlatFace"
sketch19.AttachmentOffset = App.Placement(App.Vector(0, 0, 1.3), App.Rotation())
sketch19.addGeometry([
    Part.Circle(App.Vector(41.4, 11, 0), App.Vector(0, 0, 1), 0.4),
    Part.Circle(App.Vector(41.4, 9, 0), App.Vector(0, 0, 1), 0.4),
    Part.Circle(App.Vector(41.4, 7, 0), App.Vector(0, 0, 1), 0.4),
    Part.Circle(App.Vector(41.4, 5, 0), App.Vector(0, 0, 1), 0.4),
    Part.Circle(App.Vector(41.4, 3, 0), App.Vector(0, 0, 1), 0.4),
    Part.Circle(App.Vector(41.4, 1, 0), App.Vector(0, 0, 1), 0.4),
    Part.Circle(App.Vector(41.4, -1, 0), App.Vector(0, 0, 1), 0.4),
    Part.Circle(App.Vector(41.4, -3, 0), App.Vector(0, 0, 1), 0.4),
    Part.Circle(App.Vector(41.4, -5, 0), App.Vector(0, 0, 1), 0.4),
    Part.Circle(App.Vector(41.4, -7, 0), App.Vector(0, 0, 1), 0.4),
    Part.Circle(App.Vector(41.4, -9, 0), App.Vector(0, 0, 1), 0.4),
    Part.Circle(App.Vector(41.4, -11, 0), App.Vector(0, 0, 1), 0.4),
], False)
sketch19.addConstraint([
    Sketcher.Constraint("Equal", 0, 1),
    Sketcher.Constraint("Equal", 1, 2),
    Sketcher.Constraint("Equal", 2, 3),
    Sketcher.Constraint("Equal", 3, 4),
    Sketcher.Constraint("Equal", 4, 5),
    Sketcher.Constraint("Equal", 5, 6),
    Sketcher.Constraint("Equal", 6, 7),
    Sketcher.Constraint("Equal", 7, 8),
    Sketcher.Constraint("Equal", 8, 9),
    Sketcher.Constraint("Equal", 9, 10),
    Sketcher.Constraint("Equal", 10, 11),
    Sketcher.Constraint("Symmetric", 5, 3, 6, 3, -1),
    Sketcher.Constraint("Symmetric", 4, 3, 7, 3, -1),
    Sketcher.Constraint("Symmetric", 3, 3, 8, 3, -1),
    Sketcher.Constraint("Symmetric", 2, 3, 9, 3, -1),
    Sketcher.Constraint("Symmetric", 1, 3, 10, 3, -1),
    Sketcher.Constraint("Symmetric", 0, 3, 11, 3, -1),
    Sketcher.Constraint("Vertical", 0, 3, 1, 3),
    Sketcher.Constraint("Vertical", 1, 3, 2, 3),
    Sketcher.Constraint("Vertical", 2, 3, 3, 3),
    Sketcher.Constraint("Vertical", 3, 3, 4, 3),
    Sketcher.Constraint("Vertical", 4, 3, 5, 3),
    Sketcher.Constraint("Diameter", 0, Q("0.8 mm")),
    Sketcher.Constraint("DistanceY", -1, 1, 0, 3, Q("11 mm")),
    Sketcher.Constraint("DistanceY", -1, 1, 1, 3, Q("9 mm")),
    Sketcher.Constraint("DistanceY", -1, 1, 2, 3, Q("7 mm")),
    Sketcher.Constraint("DistanceY", -1, 1, 3, 3, Q("5 mm")),
    Sketcher.Constraint("DistanceY", -1, 1, 4, 3, Q("3 mm")),
    Sketcher.Constraint("DistanceY", -1, 1, 5, 3, Q("1 mm")),
    Sketcher.Constraint("DistanceX", -1, 1, 0, 3, Q("41.4 mm")),
])
pocket17 = body.newObject("PartDesign::Pocket", "Pocket016")
pocket17.Profile = sketch19
pocket17.Type = "ThroughAll"

sketch20 = body.newObject("Sketcher::SketchObject", "Sketch019")
sketch20.AttachmentSupport = (doc.getObject("XY_Plane"), [""])
sketch20.MapMode = "FlatFace"
sketch20.AttachmentOffset = App.Placement(App.Vector(0, 0, 1.3), App.Rotation())
sketch20.addGeometry([
    Part.Circle(App.Vector(11, -41.4, 0), App.Vector(0, 0, 1), 0.4),
    Part.Circle(App.Vector(9, -41.4, 0), App.Vector(0, 0, 1), 0.4),
    Part.Circle(App.Vector(7, -41.4, 0), App.Vector(0, 0, 1), 0.4),
    Part.Circle(App.Vector(5, -41.4, 0), App.Vector(0, 0, 1), 0.4),
    Part.Circle(App.Vector(3, -41.4, 0), App.Vector(0, 0, 1), 0.4),
    Part.Circle(App.Vector(1, -41.4, 0), App.Vector(0, 0, 1), 0.4),
    Part.Circle(App.Vector(-1, -41.4, 0), App.Vector(0, 0, 1), 0.4),
    Part.Circle(App.Vector(-3, -41.4, 0), App.Vector(0, 0, 1), 0.4),
    Part.Circle(App.Vector(-5, -41.4, 0), App.Vector(0, 0, 1), 0.4),
    Part.Circle(App.Vector(-7, -41.4, 0), App.Vector(0, 0, 1), 0.4),
    Part.Circle(App.Vector(-9, -41.4, 0), App.Vector(0, 0, 1), 0.4),
    Part.Circle(App.Vector(-11, -41.4, 0), App.Vector(0, 0, 1), 0.4),
], False)
sketch20.addConstraint([
    Sketcher.Constraint("Equal", 0, 1),
    Sketcher.Constraint("Equal", 1, 2),
    Sketcher.Constraint("Equal", 2, 3),
    Sketcher.Constraint("Equal", 3, 4),
    Sketcher.Constraint("Equal", 4, 5),
    Sketcher.Constraint("Equal", 5, 6),
    Sketcher.Constraint("Equal", 6, 7),
    Sketcher.Constraint("Equal", 7, 8),
    Sketcher.Constraint("Equal", 8, 9),
    Sketcher.Constraint("Equal", 9, 10),
    Sketcher.Constraint("Equal", 10, 11),
    Sketcher.Constraint("Symmetric", 5, 3, 6, 3, -2),
    Sketcher.Constraint("Symmetric", 4, 3, 7, 3, -2),
    Sketcher.Constraint("Symmetric", 3, 3, 8, 3, -2),
    Sketcher.Constraint("Symmetric", 2, 3, 9, 3, -2),
    Sketcher.Constraint("Symmetric", 1, 3, 10, 3, -2),
    Sketcher.Constraint("Symmetric", 0, 3, 11, 3, -2),
    Sketcher.Constraint("Horizontal", 0, 3, 1, 3),
    Sketcher.Constraint("Horizontal", 1, 3, 2, 3),
    Sketcher.Constraint("Horizontal", 2, 3, 3, 3),
    Sketcher.Constraint("Horizontal", 3, 3, 4, 3),
    Sketcher.Constraint("Horizontal", 4, 3, 5, 3),
    Sketcher.Constraint("Diameter", 0, Q("0.8 mm")),
    Sketcher.Constraint("DistanceX", -1, 1, 0, 3, Q("11 mm")),
    Sketcher.Constraint("DistanceX", -1, 1, 1, 3, Q("9 mm")),
    Sketcher.Constraint("DistanceX", -1, 1, 2, 3, Q("7 mm")),
    Sketcher.Constraint("DistanceX", -1, 1, 3, 3, Q("5 mm")),
    Sketcher.Constraint("DistanceX", -1, 1, 4, 3, Q("3 mm")),
    Sketcher.Constraint("DistanceX", -1, 1, 5, 3, Q("1 mm")),
    Sketcher.Constraint("DistanceY", 0, 3, -1, 1, Q("41.4 mm")),
])
pocket18 = body.newObject("PartDesign::Pocket", "Pocket017")
pocket18.Profile = sketch20
pocket18.Type = "ThroughAll"

sketch21 = body.newObject("Sketcher::SketchObject", "Sketch020")
sketch21.AttachmentSupport = (doc.getObject("XY_Plane"), [""])
sketch21.MapMode = "FlatFace"
sketch21.AttachmentOffset = App.Placement(App.Vector(0, 0, 1.3), App.Rotation())
sketch21.addGeometry(Part.Circle(App.Vector(34.5, 45.7, 0), App.Vector(0, 0, 1), 1.9), False)
sketch21.addConstraint([
    Sketcher.Constraint("Diameter", 0, Q("3.8 mm")),
    Sketcher.Constraint("DistanceX", -1, 1, 0, 3, Q("34.5 mm")),
    Sketcher.Constraint("DistanceY", -1, 1, 0, 3, Q("45.7 mm")),
])
pocket19 = body.newObject("PartDesign::Pocket", "Pocket018")
pocket19.Profile = sketch21
pocket19.Length = 0.01

sketch22 = body.newObject("Sketcher::SketchObject", "Sketch021")
sketch22.AttachmentSupport = (doc.getObject("XY_Plane"), [""])
sketch22.MapMode = "FlatFace"
sketch22.addGeometry(Part.Circle(App.Vector(34.5, 45.7, 0), App.Vector(0, 0, 1), 1.9), False)
sketch22.addConstraint([
    Sketcher.Constraint("Diameter", 0, Q("3.8 mm")),
    Sketcher.Constraint("DistanceX", -1, 1, 0, 3, Q("34.5 mm")),
    Sketcher.Constraint("DistanceY", -1, 1, 0, 3, Q("45.7 mm")),
])
pocket20 = body.newObject("PartDesign::Pocket", "Pocket019")
pocket20.Profile = sketch22
pocket20.Length = 0.01
pocket20.Reversed = True

doc.recompute()
